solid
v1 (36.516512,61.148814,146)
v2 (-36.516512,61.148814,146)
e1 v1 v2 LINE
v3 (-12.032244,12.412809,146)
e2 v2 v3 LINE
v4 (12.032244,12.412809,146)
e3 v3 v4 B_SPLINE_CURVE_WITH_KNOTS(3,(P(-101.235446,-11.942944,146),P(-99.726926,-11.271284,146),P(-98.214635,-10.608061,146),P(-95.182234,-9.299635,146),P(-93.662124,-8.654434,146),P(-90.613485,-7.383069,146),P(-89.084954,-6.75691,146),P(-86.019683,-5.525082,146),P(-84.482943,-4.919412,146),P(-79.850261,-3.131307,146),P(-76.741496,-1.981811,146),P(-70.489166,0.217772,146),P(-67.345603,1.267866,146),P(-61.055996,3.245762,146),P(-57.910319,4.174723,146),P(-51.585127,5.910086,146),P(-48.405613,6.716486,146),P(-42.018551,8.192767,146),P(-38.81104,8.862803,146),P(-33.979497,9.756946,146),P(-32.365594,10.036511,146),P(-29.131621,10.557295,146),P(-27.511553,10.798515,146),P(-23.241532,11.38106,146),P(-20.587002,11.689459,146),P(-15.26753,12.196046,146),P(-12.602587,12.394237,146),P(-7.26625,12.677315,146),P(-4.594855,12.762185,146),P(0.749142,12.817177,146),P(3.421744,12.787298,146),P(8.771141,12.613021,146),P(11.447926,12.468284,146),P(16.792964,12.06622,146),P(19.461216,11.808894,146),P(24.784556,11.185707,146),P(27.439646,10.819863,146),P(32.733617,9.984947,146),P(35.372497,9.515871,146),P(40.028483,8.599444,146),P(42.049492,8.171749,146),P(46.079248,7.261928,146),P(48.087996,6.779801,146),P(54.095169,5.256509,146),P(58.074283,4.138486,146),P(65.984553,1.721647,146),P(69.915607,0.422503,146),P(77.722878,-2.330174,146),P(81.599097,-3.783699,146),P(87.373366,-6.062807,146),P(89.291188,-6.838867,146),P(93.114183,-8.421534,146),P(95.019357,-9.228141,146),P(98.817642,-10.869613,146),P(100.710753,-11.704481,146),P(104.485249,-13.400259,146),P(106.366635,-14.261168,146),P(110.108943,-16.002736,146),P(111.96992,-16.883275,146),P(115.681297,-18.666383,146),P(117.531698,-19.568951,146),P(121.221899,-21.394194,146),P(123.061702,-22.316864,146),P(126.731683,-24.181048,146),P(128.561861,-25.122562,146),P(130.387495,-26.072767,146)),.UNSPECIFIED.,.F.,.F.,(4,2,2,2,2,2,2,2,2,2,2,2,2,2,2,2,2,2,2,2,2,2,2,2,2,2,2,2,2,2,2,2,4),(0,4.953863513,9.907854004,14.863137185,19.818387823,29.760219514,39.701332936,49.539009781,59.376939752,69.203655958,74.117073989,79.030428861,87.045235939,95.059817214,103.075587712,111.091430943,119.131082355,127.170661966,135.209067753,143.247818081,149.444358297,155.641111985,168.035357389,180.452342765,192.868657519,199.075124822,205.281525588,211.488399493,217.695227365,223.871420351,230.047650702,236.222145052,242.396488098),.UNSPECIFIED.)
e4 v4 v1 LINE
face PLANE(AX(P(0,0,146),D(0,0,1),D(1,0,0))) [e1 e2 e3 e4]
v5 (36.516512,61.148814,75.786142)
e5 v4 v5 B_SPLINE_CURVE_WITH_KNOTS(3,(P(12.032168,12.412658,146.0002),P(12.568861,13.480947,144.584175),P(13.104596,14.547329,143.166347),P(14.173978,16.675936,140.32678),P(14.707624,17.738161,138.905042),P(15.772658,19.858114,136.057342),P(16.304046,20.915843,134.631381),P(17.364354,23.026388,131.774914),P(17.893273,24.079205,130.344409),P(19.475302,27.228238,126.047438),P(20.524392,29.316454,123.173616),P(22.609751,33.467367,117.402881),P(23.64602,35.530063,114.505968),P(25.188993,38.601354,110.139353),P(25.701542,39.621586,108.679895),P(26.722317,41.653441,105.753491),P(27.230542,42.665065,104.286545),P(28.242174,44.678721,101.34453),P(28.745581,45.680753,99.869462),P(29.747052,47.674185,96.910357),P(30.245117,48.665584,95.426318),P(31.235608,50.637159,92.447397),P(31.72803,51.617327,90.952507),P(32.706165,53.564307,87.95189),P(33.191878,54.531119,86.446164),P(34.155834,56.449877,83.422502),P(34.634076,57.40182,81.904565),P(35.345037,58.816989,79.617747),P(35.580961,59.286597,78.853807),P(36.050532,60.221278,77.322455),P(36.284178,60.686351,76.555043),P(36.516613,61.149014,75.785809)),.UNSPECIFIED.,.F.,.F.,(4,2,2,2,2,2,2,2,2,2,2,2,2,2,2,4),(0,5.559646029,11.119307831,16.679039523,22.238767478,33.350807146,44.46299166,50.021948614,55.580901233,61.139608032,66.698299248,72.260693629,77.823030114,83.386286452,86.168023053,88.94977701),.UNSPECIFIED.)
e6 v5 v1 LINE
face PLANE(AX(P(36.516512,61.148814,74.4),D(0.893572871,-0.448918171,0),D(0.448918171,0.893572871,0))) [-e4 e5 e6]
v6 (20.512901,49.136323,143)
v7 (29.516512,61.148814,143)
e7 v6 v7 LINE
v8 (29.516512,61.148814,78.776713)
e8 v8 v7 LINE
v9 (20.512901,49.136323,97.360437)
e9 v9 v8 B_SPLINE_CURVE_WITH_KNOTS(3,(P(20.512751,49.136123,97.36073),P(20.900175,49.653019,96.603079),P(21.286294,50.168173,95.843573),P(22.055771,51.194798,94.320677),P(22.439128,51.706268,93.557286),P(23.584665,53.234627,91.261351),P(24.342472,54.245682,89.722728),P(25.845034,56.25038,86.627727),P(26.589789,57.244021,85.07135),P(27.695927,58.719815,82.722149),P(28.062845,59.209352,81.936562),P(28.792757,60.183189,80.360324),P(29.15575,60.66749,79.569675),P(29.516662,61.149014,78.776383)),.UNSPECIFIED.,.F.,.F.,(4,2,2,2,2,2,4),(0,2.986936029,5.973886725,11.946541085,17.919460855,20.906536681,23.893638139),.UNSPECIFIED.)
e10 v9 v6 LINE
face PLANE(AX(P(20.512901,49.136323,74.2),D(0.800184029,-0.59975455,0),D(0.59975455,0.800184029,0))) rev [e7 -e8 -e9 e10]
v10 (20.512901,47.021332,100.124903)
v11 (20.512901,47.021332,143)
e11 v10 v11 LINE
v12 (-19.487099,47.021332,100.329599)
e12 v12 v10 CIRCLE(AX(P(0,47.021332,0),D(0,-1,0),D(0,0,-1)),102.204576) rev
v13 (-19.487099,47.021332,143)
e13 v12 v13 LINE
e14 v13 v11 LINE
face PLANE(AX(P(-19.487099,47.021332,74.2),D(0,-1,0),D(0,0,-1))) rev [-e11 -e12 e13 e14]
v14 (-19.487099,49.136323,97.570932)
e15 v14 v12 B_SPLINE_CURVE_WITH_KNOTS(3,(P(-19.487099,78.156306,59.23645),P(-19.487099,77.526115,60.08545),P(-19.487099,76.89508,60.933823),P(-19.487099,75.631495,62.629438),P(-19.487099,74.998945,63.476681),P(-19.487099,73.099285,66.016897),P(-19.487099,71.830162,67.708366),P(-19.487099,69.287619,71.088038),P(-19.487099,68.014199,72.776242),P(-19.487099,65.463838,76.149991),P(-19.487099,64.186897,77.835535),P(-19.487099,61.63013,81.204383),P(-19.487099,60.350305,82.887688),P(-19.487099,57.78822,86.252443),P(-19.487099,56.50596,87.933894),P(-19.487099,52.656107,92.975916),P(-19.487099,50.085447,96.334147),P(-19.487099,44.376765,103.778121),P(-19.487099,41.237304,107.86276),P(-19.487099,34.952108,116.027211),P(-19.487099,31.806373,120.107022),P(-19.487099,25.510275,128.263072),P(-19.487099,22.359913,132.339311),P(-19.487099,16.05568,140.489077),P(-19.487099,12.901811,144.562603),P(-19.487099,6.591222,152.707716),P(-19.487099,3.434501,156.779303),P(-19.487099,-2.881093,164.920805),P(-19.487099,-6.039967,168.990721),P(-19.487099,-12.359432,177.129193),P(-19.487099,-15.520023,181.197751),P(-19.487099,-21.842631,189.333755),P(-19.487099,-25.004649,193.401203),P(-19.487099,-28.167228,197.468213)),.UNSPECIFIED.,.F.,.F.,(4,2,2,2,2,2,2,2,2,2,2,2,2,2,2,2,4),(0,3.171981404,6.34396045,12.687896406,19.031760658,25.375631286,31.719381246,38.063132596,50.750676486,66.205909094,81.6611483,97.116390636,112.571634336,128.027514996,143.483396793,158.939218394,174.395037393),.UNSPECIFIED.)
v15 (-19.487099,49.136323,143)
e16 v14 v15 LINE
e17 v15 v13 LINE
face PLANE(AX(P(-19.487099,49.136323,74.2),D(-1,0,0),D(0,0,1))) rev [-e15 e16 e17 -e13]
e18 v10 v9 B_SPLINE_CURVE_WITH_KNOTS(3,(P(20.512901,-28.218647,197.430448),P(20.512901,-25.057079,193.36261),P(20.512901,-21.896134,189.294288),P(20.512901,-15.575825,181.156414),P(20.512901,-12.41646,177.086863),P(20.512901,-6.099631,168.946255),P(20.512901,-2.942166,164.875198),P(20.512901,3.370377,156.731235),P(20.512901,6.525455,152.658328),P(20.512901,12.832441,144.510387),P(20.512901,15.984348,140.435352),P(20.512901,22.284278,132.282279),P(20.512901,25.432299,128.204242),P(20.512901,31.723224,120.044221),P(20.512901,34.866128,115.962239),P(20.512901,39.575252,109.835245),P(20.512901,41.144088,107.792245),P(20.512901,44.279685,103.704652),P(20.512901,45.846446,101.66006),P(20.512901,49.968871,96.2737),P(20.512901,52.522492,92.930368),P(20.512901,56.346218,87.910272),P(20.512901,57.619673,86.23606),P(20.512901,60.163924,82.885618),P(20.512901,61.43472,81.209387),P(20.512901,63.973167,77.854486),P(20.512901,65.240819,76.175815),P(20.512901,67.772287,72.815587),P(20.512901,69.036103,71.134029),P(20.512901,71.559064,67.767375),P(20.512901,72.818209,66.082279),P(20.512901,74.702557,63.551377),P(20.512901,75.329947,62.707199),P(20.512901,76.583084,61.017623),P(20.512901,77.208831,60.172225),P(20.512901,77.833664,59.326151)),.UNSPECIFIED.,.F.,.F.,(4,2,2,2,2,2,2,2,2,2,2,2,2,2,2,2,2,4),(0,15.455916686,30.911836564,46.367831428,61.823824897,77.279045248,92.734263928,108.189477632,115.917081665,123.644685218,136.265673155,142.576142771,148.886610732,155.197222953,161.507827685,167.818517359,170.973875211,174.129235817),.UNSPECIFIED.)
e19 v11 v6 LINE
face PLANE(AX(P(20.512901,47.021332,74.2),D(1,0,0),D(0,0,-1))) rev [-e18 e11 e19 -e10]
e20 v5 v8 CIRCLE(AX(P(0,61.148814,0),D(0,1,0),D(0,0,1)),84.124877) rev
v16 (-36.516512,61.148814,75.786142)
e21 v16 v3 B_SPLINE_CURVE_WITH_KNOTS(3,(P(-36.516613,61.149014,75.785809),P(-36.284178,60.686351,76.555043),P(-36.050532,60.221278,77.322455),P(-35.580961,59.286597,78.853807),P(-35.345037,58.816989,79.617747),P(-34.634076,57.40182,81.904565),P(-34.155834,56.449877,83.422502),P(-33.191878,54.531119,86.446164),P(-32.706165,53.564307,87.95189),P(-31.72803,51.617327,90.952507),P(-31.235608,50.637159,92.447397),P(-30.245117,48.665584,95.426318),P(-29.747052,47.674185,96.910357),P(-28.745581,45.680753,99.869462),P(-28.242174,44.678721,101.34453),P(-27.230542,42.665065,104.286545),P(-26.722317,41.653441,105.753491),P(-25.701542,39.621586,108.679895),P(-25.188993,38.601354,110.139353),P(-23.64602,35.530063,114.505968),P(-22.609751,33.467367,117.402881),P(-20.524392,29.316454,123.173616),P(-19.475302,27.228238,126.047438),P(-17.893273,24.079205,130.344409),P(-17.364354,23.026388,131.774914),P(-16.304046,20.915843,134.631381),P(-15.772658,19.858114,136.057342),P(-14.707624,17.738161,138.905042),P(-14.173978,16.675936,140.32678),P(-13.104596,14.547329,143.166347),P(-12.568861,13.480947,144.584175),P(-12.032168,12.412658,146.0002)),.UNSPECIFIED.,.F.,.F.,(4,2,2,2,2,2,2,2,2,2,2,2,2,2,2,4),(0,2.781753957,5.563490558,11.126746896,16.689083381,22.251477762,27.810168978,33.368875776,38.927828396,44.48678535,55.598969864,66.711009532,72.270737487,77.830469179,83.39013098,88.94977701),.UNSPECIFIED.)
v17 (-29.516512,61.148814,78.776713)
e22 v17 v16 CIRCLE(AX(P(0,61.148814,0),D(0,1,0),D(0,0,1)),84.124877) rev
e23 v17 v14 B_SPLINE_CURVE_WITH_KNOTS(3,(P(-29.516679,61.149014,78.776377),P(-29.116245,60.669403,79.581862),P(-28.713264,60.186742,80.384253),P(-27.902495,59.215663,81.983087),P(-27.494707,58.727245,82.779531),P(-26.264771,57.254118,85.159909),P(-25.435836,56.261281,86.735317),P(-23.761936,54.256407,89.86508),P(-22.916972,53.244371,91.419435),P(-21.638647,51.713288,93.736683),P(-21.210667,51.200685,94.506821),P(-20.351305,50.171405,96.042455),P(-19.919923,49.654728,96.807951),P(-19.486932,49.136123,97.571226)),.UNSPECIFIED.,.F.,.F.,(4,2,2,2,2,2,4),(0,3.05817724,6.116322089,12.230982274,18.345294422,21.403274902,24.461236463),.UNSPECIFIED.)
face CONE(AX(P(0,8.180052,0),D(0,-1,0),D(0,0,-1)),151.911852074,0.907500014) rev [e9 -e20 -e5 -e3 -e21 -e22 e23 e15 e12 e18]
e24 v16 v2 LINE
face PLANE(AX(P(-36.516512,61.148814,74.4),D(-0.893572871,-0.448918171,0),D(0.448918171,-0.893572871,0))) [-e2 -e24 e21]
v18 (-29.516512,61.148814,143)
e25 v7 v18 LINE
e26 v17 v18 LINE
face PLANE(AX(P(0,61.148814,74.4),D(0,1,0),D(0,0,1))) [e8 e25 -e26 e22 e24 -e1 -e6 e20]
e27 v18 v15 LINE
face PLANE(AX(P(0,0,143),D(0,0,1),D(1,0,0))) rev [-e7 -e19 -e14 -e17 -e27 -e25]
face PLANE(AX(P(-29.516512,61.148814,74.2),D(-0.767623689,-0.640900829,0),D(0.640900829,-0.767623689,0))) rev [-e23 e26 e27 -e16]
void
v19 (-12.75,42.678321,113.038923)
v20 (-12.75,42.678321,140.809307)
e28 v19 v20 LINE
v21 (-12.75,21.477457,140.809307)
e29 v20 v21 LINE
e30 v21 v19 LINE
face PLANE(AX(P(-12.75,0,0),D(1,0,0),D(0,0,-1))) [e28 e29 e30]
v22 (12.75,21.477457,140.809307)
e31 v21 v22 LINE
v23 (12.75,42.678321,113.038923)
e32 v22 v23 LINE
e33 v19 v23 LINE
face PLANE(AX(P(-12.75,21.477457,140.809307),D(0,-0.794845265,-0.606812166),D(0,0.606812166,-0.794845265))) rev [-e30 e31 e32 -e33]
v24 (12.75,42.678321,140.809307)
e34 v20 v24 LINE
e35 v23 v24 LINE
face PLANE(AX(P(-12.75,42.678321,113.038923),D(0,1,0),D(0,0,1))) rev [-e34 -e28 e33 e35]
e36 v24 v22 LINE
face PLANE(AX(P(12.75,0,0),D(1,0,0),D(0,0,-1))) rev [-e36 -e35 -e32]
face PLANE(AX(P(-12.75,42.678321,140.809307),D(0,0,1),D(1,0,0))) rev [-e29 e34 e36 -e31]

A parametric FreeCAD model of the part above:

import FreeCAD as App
import Part
import Sketcher
Q = App.Units.Quantity

doc = App.newDocument("Part")
body = doc.addObject("PartDesign::Body", "Body")

# Sketch on XY plane
sketch1 = body.newObject("Sketcher::SketchObject", "Sketch")
sketch1.AttachmentSupport = (doc.getObject("XY_Plane"), [""])
sketch1.MapMode = "FlatFace"
sketch1.AttachmentOffset = App.Placement(App.Vector(0, 0, 146), App.Rotation())
sketch1.addGeometry([
    Part.LineSegment(App.Vector(36.516512, 61.148814, 0), App.Vector(-36.516512, 61.148814, 0)),
    Part.LineSegment(App.Vector(-36.516512, 61.148814, 0), App.Vector(-7.783032, 3.954741, 0)),
    Part.LineSegment(App.Vector(-7.783032, 3.954741, 0), App.Vector(7.783032, 3.954741, 0)),
    Part.LineSegment(App.Vector(7.783032, 3.954741, 0), App.Vector(36.516512, 61.148814, 0)),
], False)
sketch1.addConstraint([
    Sketcher.Constraint("Coincident", 0, 2, 1, 1),
    Sketcher.Constraint("Coincident", 1, 2, 2, 1),
    Sketcher.Constraint("Coincident", 2, 2, 3, 1),
    Sketcher.Constraint("Coincident", 3, 2, 0, 1),
    Sketcher.Constraint("Horizontal", 0),
    Sketcher.Constraint("Horizontal", 2),
    Sketcher.Constraint("Equal", 1, 3),
    Sketcher.Constraint("DistanceX", 0, 2, 0, 1, Q("73.033025 mm")),
    Sketcher.Constraint("DistanceX", 2, 1, 2, 2, Q("15.566064 mm")),
    Sketcher.Constraint("DistanceX", 1, 2, -1, 1, Q("7.783032 mm")),
    Sketcher.Constraint("DistanceY", -1, 1, 1, 2, Q("3.954741 mm")),
    Sketcher.Constraint("Distance", 1, Q("64.006054 mm")),
])
pad1 = body.newObject("PartDesign::Pad", "Pad")
pad1.Profile = sketch1
pad1.Length = 71.6
pad1.Reversed = True

# Sketch on XY plane
sketch2 = body.newObject("Sketcher::SketchObject", "Sketch001")
sketch2.AttachmentSupport = (doc.getObject("XY_Plane"), [""])
sketch2.MapMode = "FlatFace"
sketch2.AttachmentOffset = App.Placement(App.Vector(0, 0, 143), App.Rotation())
sketch2.addGeometry([
    Part.LineSegment(App.Vector(-19.487099, 47.021332, 0), App.Vector(20.512901, 47.021332, 0)),  # 0
    Part.LineSegment(App.Vector(20.512901, 47.021332, 0), App.Vector(20.512901, 49.136323, 0)),  # 1
    Part.LineSegment(App.Vector(20.512901, 49.136323, 0), App.Vector(29.516512, 61.148814, 0)),  # 2
    Part.LineSegment(App.Vector(29.516512, 61.148814, 0), App.Vector(-29.516512, 61.148814, 0)),  # 3
    Part.LineSegment(App.Vector(-29.516512, 61.148814, 0), App.Vector(-19.487099, 49.136323, 0)),  # 4
    Part.LineSegment(App.Vector(-19.487099, 49.136323, 0), App.Vector(-19.487099, 47.021332, 0)),  # 5
], False)
sketch2.addConstraint([
    Sketcher.Constraint("Coincident", 0, 2, 1, 1),
    Sketcher.Constraint("Coincident", 1, 2, 2, 1),
    Sketcher.Constraint("Coincident", 2, 2, 3, 1),
    Sketcher.Constraint("Coincident", 3, 2, 4, 1),
    Sketcher.Constraint("Coincident", 4, 2, 5, 1),
    Sketcher.Constraint("Coincident", 5, 2, 0, 1),
    Sketcher.Constraint("Horizontal", 0),
    Sketcher.Constraint("Vertical", 1),
    Sketcher.Constraint("Horizontal", 3),
    Sketcher.Constraint("Vertical", 5),
    Sketcher.Constraint("Horizontal", 1, 2, 4, 2),
    Sketcher.Constraint("DistanceX", 0, 1, 0, 2, Q("40 mm")),
    Sketcher.Constraint("DistanceY", 1, 1, 1, 2, Q("2.114991 mm")),
    Sketcher.Constraint("DistanceX", -1, 1, 0, 2, Q("20.512901 mm")),
    Sketcher.Constraint("Distance", 2, Q("15.01216 mm")),
    Sketcher.Constraint("Distance", 4, Q("15.648932 mm")),
    Sketcher.Constraint("DistanceX", 3, 2, 3, 1, Q("59.033025 mm")),
    Sketcher.Constraint("DistanceY", -1, 1, 0, 2, Q("47.021332 mm")),
])
pocket1 = body.newObject("PartDesign::Pocket", "Pocket")
pocket1.Profile = sketch2
pocket1.Length = 68.8

# Sketch on XY plane
sketch3 = body.newObject("Sketcher::SketchObject", "Sketch002")
sketch3.AttachmentSupport = (doc.getObject("XY_Plane"), [""])
sketch3.MapMode = "FlatFace"
sketch3.addGeometry([
    Part.LineSegment(App.Vector(0, 80, 0), App.Vector(0, -62.094926, 0)),  # 0
    Part.LineSegment(App.Vector(0, -62.094926, 0), App.Vector(151.911852, -62.094926, 0)),  # 1
    Part.LineSegment(App.Vector(151.911852, -62.094926, 0), App.Vector(151.911852, 8.180052, 0)),  # 2
    Part.LineSegment(App.Vector(151.911852, 8.180052, 0), App.Vector(60, 80, 0)),  # 3
    Part.LineSegment(App.Vector(60, 80, 0), App.Vector(0, 80, 0)),  # 4
], False)
sketch3.addConstraint([
    Sketcher.Constraint("Coincident", 0, 2, 1, 1),
    Sketcher.Constraint("Coincident", 1, 2, 2, 1),
    Sketcher.Constraint("Coincident", 2, 2, 3, 1),
    Sketcher.Constraint("Coincident", 3, 2, 4, 1),
    Sketcher.Constraint("Coincident", 4, 2, 0, 1),
    Sketcher.Constraint("Vertical", 0),
    Sketcher.Constraint("Horizontal", 1),
    Sketcher.Constraint("Vertical", 2),
    Sketcher.Constraint("Horizontal", 4),
    Sketcher.Constraint("PointOnObject", 0, 2, -2),
    Sketcher.Constraint("DistanceX", 4, 2, 4, 1, Q("60 mm")),
    Sketcher.Constraint("DistanceY", -1, 1, 3, 2, Q("80 mm")),
    Sketcher.Constraint("DistanceY", 2, 1, 2, 2, Q("70.274979 mm")),
    Sketcher.Constraint("DistanceX", 1, 1, 1, 2, Q("151.911852 mm")),
    Sketcher.Constraint("DistanceY", 0, 2, 0, 1, Q("142.094926 mm")),
])
groove = body.newObject("PartDesign::Groove", "Groove")
groove.Profile = sketch3
groove.ReferenceAxis = (sketch3, ["V_Axis"])
groove.Angle = 360

# Sketch on YZ plane
sketch4 = body.newObject("Sketcher::SketchObject", "Sketch003")
sketch4.AttachmentSupport = (doc.getObject("YZ_Plane"), [""])
sketch4.MapMode = "FlatFace"
sketch4.addGeometry([
    Part.LineSegment(App.Vector(42.678321, 140.809307, 0), App.Vector(21.477457, 140.809307, 0)),
    Part.LineSegment(App.Vector(21.477457, 140.809307, 0), App.Vector(42.678321, 113.038923, 0)),
    Part.LineSegment(App.Vector(42.678321, 113.038923, 0), App.Vector(42.678321, 140.809307, 0)),
], False)
sketch4.addConstraint([
    Sketcher.Constraint("Coincident", 0, 2, 1, 1),
    Sketcher.Constraint("Coincident", 1, 2, 2, 1),
    Sketcher.Constraint("Coincident", 2, 2, 0, 1),
    Sketcher.Constraint("Horizontal", 0),
    Sketcher.Constraint("Vertical", 2),
    Sketcher.Constraint("Distance", 1, Q("34.938101 mm")),
    Sketcher.Constraint("DistanceX", 0, 2, 0, 1, Q("21.200865 mm")),
    Sketcher.Constraint("DistanceX", -1, 1, 1, 2, Q("42.678321 mm")),
    Sketcher.Constraint("DistanceY", -1, 1, 0, 2, Q("140.809307 mm")),
])
pocket2 = body.newObject("PartDesign::Pocket", "Pocket001")
pocket2.Profile = sketch4
pocket2.Length = 25.5
pocket2.Midplane = True

doc.recompute()
